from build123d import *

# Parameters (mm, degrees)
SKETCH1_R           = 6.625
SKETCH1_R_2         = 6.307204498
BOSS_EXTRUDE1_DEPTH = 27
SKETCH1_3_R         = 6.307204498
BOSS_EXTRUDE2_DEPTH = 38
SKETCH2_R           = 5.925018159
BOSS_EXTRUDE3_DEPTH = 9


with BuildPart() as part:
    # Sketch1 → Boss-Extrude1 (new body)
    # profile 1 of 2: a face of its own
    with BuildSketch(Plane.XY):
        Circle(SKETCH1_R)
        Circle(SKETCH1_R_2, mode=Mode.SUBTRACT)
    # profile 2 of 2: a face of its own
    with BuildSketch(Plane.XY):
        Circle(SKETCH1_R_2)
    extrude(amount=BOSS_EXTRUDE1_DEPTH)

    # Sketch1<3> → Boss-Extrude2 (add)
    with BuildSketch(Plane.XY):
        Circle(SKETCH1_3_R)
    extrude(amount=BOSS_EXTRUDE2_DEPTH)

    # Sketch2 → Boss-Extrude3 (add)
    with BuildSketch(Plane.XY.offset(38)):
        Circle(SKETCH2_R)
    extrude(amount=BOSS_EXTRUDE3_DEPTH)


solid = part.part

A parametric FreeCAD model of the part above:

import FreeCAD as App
import Part
import Sketcher
from FreeCAD import Vector
Q = App.Units.Quantity

doc = App.newDocument("Part")
body = doc.addObject("PartDesign::Body", "Body")

sketch1 = body.newObject("Sketcher::SketchObject", "Sketch")
sketch1.AttachmentSupport = (doc.getObject("XY_Plane"), [""])
sketch1.MapMode = "FlatFace"
sketch1.addGeometry(Part.Circle(Vector(0, 0, 0), Vector(0, 0, 1), 6.625), False)
sketch1.addConstraint(Sketcher.Constraint("Coincident", 0, 3, -1, 1))
sketch1.addConstraint(Sketcher.Constraint("Diameter", 0, Q("13.25 mm")))
pad1 = body.newObject("PartDesign::Pad", "Pad")
pad1.Profile = sketch1
pad1.Length = 27

sketch2 = body.newObject("Sketcher::SketchObject", "Sketch001")
sketch2.AttachmentSupport = (doc.getObject("XY_Plane"), [""])
sketch2.MapMode = "FlatFace"
sketch2.addGeometry(Part.Circle(Vector(0, 0, 0), Vector(0, 0, 1), 6.307204), False)
sketch2.addConstraint(Sketcher.Constraint("Coincident", 0, 3, -1, 1))
sketch2.addConstraint(Sketcher.Constraint("Diameter", 0, Q("12.614409 mm")))
pad2 = body.newObject("PartDesign::Pad", "Pad001")
pad2.Profile = sketch2
pad2.Length = 38

sketch3 = body.newObject("Sketcher::SketchObject", "Sketch002")
sketch3.AttachmentSupport = (doc.getObject("XY_Plane"), [""])
sketch3.MapMode = "FlatFace"
sketch3.AttachmentOffset = App.Placement(Vector(0, 0, 38), App.Rotation())
sketch3.addGeometry(Part.Circle(Vector(0, 0, 0), Vector(0, 0, 1), 5.925018), False)
sketch3.addConstraint(Sketcher.Constraint("Coincident", 0, 3, -1, 1))
sketch3.addConstraint(Sketcher.Constraint("Diameter", 0, Q("11.850036 mm")))
pad3 = body.newObject("PartDesign::Pad", "Pad002")
pad3.Profile = sketch3
pad3.Length = 9

doc.recompute()
